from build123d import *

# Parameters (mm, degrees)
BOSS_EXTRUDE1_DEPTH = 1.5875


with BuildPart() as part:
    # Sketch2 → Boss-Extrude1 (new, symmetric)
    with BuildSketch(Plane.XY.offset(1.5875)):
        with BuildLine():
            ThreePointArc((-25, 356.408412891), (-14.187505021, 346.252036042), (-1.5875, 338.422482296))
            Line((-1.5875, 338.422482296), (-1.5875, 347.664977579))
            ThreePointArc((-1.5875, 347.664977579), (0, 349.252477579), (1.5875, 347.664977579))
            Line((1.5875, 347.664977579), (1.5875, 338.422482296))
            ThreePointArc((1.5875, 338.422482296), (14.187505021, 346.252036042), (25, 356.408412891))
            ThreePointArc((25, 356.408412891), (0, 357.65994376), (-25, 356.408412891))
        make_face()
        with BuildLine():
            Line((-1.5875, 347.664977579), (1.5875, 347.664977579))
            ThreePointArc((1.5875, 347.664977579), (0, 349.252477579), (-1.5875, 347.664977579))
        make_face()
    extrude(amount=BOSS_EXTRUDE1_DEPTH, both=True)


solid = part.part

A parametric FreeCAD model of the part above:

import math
import FreeCAD as App
import Part
import Sketcher

V = App.Vector
Q = App.Units.Quantity

doc = App.newDocument("Part")
body = doc.addObject("PartDesign::Body", "Body")

# Sketch on XY plane
sketch1 = body.newObject("Sketcher::SketchObject", "Sketch")
sketch1.AttachmentSupport = (doc.getObject("XY_Plane"), [""])
sketch1.MapMode = "FlatFace"
sketch1.AttachmentOffset = App.Placement(V(0, 0, 0.0625 * 25.4), App.Rotation())
sketch1.addGeometry(Part.ArcOfCircle(Part.Circle(V(31.502992, 405.7279, 0), V(0, 0, 1), 75), math.radians(-138.883429), math.radians(-116.18089)), False)
sketch1.addGeometry(Part.LineSegment(V(-1.5875, 338.422482, 0), V(-1.5875, 347.664978, 0)), False)
sketch1.addGeometry(Part.LineSegment(V(-1.5875, 347.664978, 0), V(1.5875, 347.664978, 0)), False)
sketch1.addGeometry(Part.LineSegment(V(1.5875, 347.664978, 0), V(1.5875, 338.422482, 0)), False)
sketch1.addGeometry(Part.ArcOfCircle(Part.Circle(V(-31.502992, 405.7279, 0), V(0, 0, 1), 75), math.radians(-63.81911), math.radians(-41.116571)), False)
sketch1.addGeometry(Part.ArcOfCircle(Part.Circle(V(0, 107.339978, 0), V(0, 0, 1), 250.319966), math.radians(84.26819), math.radians(95.73181)), False)
sketch1.addConstraint(Sketcher.Constraint("Coincident", 0, 2, 1, 1))
sketch1.addConstraint(Sketcher.Constraint("Coincident", 1, 2, 2, 1))
sketch1.addConstraint(Sketcher.Constraint("Coincident", 2, 2, 3, 1))
sketch1.addConstraint(Sketcher.Constraint("Coincident", 3, 2, 4, 1))
sketch1.addConstraint(Sketcher.Constraint("Coincident", 4, 2, 5, 1))
sketch1.addConstraint(Sketcher.Constraint("Coincident", 5, 2, 0, 1))
sketch1.addConstraint(Sketcher.Constraint("Vertical", 1))
sketch1.addConstraint(Sketcher.Constraint("Horizontal", 2))
sketch1.addConstraint(Sketcher.Constraint("Vertical", 3))
sketch1.addConstraint(Sketcher.Constraint("Equal", 0, 4))
sketch1.addConstraint(Sketcher.Constraint("Symmetric", 0, 3, 4, 3, -2))
sketch1.addConstraint(Sketcher.Constraint("PointOnObject", 5, 3, -2))
sketch1.addConstraint(Sketcher.Constraint("Horizontal", 0, 2, 3, 2))
sketch1.addConstraint(Sketcher.Constraint("DistanceX", 2, 1, 2, 2, Q("0.125 in")))
sketch1.addConstraint(Sketcher.Constraint("Radius", 0, 75.0))
sketch1.addConstraint(Sketcher.Constraint("Radius", 5, 250.319966))
sketch1.addConstraint(Sketcher.Constraint("DistanceY", -1, 1, 0, 3, 405.7279))
sketch1.addConstraint(Sketcher.Constraint("DistanceX", -1, 1, 4, 2, 25.0))
sketch1.addConstraint(Sketcher.Constraint("DistanceY", 5, 3, 1, 2, 240.325))
sketch1.addConstraint(Sketcher.Constraint("DistanceY", 1, 1, 1, 2, 9.242495))
pad1 = body.newObject("PartDesign::Pad", "Pad")
pad1.Profile = sketch1
pad1.Length = Q("0.125 in")
pad1.Midplane = True

doc.recompute()
